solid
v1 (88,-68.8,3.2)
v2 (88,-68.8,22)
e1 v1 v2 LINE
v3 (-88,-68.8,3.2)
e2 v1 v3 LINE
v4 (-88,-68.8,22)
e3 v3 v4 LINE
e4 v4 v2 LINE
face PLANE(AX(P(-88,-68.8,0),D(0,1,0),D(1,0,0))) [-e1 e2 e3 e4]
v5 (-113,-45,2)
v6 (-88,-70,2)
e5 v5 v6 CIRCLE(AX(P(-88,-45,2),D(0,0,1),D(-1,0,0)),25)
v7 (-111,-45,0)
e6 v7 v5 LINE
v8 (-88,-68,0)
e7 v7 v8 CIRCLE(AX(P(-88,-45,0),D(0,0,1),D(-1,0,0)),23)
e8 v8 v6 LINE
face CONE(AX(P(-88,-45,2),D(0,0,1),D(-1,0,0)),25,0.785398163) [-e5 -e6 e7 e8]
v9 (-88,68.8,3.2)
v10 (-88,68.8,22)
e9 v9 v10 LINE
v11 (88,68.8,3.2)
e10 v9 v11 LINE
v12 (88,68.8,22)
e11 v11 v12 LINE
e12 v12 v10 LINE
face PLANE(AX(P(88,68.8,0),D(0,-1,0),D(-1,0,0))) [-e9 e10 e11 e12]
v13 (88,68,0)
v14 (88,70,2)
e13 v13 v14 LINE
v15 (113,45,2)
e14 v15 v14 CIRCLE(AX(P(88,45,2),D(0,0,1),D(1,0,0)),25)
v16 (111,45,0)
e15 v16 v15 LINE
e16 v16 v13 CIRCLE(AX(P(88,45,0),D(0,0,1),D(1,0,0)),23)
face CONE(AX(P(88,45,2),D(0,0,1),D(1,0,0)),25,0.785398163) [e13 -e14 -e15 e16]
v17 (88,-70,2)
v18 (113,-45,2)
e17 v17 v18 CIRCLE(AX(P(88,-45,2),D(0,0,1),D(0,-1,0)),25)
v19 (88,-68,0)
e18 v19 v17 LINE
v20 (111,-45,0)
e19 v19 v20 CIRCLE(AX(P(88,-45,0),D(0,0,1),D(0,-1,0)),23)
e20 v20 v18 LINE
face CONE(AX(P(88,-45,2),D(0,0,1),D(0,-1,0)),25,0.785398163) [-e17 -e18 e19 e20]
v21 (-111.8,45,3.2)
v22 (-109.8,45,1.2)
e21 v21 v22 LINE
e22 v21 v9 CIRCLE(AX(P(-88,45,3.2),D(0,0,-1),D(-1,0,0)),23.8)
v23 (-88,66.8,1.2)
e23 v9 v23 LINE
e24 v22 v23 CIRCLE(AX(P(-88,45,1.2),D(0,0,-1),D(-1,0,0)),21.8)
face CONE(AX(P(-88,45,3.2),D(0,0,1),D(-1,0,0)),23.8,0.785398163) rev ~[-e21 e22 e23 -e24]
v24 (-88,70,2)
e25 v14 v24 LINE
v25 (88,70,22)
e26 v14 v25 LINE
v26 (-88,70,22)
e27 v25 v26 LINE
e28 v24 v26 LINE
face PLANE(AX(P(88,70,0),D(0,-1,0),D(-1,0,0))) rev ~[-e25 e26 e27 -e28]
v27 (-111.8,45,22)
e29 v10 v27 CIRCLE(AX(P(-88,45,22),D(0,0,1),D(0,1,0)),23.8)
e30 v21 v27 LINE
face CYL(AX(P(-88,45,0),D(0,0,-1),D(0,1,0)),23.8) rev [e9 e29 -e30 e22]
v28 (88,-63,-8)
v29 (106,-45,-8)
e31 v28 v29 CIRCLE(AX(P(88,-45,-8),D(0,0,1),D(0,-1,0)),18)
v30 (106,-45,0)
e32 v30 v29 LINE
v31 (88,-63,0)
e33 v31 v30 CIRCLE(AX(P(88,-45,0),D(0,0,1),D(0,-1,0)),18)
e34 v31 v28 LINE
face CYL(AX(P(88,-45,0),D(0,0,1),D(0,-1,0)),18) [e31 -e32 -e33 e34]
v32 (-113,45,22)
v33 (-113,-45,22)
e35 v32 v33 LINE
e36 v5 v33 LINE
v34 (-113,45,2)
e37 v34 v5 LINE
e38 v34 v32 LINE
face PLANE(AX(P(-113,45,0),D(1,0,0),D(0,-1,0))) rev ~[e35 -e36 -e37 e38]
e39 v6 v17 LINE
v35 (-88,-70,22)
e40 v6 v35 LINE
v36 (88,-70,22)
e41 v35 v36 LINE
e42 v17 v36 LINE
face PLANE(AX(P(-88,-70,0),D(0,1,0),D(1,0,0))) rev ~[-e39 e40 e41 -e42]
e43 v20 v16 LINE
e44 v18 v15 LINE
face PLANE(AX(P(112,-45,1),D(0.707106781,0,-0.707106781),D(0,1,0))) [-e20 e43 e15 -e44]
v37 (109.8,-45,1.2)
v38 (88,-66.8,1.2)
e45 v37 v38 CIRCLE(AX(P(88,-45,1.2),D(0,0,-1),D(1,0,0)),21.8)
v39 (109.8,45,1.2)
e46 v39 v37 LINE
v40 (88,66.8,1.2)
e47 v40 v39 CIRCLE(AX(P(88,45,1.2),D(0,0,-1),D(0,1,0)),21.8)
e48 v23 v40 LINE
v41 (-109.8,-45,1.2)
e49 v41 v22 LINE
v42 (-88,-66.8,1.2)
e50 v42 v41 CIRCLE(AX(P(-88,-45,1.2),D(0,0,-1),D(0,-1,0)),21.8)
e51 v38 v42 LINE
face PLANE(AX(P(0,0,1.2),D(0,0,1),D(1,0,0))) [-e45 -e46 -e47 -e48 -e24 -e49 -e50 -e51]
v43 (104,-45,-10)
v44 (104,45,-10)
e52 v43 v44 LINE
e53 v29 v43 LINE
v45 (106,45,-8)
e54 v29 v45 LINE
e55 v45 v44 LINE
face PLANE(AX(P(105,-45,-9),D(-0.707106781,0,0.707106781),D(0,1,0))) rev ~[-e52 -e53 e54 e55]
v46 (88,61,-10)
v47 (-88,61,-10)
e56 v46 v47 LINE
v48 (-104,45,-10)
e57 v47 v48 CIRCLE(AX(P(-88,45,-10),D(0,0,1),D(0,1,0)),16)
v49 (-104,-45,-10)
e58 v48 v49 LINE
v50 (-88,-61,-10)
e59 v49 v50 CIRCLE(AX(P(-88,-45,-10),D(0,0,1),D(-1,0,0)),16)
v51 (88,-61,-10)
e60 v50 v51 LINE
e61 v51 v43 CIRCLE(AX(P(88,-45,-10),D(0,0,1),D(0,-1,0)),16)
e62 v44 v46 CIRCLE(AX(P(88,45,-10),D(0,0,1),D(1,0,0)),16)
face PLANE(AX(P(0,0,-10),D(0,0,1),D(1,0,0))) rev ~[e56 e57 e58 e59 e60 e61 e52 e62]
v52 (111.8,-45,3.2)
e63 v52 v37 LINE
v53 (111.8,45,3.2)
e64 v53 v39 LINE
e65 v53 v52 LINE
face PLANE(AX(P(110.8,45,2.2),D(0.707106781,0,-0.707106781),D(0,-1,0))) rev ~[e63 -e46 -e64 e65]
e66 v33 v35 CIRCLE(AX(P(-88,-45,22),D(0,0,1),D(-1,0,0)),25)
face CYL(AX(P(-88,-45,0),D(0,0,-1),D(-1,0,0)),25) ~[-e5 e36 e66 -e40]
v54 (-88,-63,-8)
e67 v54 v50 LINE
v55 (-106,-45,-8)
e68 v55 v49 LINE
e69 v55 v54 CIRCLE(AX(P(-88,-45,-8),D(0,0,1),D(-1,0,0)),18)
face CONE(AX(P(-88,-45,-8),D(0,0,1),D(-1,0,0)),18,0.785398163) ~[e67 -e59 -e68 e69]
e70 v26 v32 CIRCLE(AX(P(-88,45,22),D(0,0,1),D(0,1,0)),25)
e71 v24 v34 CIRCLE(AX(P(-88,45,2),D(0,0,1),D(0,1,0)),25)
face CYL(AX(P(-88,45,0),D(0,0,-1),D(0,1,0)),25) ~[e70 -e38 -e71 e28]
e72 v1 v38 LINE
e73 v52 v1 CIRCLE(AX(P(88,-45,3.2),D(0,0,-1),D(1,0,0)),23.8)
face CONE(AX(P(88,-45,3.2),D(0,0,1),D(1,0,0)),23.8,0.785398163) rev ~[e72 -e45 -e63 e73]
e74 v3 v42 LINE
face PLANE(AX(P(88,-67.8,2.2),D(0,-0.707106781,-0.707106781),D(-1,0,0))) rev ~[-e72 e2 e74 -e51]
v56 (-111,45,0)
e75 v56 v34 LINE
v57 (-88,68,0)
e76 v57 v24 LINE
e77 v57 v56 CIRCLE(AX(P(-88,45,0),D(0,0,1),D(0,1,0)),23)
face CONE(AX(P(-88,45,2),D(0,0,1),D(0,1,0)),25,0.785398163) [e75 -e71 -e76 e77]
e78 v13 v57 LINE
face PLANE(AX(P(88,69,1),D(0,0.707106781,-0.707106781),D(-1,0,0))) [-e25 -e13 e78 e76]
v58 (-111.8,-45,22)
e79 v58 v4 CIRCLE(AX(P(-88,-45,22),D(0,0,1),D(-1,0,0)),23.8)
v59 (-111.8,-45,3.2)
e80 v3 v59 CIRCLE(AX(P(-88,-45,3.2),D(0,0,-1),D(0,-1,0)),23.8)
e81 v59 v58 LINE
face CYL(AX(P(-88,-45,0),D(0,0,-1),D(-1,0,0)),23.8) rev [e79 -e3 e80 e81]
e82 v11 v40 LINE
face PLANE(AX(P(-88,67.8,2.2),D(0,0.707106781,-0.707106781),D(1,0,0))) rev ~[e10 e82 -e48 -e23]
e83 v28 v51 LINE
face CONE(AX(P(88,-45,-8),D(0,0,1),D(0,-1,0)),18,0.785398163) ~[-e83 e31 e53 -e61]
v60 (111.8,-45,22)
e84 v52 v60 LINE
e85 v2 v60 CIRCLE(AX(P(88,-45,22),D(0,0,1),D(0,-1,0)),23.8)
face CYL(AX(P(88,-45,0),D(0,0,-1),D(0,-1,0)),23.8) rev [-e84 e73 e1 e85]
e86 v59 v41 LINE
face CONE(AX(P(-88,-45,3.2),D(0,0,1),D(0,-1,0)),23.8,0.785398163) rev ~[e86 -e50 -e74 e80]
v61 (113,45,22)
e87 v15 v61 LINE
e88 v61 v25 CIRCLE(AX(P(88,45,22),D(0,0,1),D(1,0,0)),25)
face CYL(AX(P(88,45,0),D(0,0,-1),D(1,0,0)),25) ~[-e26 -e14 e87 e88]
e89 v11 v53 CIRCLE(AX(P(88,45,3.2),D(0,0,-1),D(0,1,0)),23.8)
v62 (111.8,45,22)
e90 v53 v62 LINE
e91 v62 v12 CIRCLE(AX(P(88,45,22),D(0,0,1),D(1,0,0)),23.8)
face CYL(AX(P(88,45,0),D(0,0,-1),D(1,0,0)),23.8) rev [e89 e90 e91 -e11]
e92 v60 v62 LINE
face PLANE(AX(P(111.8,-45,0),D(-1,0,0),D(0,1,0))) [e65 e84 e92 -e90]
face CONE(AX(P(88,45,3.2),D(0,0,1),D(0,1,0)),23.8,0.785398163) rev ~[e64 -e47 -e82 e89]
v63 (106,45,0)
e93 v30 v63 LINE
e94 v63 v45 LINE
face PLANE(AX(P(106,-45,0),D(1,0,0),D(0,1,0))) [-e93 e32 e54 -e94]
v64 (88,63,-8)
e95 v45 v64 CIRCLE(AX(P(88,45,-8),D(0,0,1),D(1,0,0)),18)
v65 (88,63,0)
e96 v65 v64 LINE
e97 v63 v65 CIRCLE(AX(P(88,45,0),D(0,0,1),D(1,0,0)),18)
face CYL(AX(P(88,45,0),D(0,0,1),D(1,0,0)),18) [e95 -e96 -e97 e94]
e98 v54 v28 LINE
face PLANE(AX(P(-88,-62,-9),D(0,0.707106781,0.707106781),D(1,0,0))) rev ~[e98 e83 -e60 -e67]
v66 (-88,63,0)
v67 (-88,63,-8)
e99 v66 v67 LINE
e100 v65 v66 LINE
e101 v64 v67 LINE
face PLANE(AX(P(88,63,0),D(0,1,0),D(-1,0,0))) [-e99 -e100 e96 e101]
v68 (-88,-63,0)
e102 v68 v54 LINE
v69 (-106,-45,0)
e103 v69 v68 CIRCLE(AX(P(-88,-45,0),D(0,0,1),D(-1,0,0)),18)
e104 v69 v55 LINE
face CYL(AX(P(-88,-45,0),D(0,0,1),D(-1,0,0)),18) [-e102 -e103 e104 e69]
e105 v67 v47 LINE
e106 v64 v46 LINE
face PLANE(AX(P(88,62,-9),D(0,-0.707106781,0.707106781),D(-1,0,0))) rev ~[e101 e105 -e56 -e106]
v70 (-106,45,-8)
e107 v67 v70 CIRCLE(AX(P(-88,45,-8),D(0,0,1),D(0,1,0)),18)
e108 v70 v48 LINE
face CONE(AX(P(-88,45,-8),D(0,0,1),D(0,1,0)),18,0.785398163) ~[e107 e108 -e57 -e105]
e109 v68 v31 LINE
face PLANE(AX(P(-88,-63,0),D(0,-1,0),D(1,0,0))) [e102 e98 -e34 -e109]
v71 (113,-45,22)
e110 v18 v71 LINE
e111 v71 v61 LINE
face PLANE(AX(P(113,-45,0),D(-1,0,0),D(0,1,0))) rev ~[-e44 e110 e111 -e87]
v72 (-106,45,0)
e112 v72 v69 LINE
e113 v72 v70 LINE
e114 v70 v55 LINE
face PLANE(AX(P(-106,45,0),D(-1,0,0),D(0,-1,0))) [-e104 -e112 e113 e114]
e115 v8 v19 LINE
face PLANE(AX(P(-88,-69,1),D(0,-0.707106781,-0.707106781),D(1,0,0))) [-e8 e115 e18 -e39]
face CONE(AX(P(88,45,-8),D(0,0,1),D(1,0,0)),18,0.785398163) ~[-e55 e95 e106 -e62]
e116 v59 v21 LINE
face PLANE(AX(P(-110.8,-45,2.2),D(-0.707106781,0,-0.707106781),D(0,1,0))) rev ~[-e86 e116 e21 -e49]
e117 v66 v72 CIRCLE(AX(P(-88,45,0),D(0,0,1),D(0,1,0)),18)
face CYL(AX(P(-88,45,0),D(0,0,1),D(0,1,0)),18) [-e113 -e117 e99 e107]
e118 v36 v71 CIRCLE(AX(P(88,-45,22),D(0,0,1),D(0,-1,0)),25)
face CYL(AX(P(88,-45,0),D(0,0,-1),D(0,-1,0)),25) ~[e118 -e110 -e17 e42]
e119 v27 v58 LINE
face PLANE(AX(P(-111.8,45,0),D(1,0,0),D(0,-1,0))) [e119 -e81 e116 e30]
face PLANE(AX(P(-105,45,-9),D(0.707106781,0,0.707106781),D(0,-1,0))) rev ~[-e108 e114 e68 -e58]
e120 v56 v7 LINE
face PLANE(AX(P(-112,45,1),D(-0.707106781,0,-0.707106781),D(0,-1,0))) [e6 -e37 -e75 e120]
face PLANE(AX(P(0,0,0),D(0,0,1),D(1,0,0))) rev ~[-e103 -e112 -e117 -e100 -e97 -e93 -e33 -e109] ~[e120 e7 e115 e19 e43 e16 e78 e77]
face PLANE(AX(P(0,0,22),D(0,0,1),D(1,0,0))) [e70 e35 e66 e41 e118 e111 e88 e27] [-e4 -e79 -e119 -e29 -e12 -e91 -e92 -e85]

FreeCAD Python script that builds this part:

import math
import FreeCAD as App
import Part
import Sketcher
from FreeCAD import Vector
Q = App.Units.Quantity


def edges_at(feature, points):
    """Names of the edges that pass closest to the given points."""
    edges = feature.Shape.Edges
    near = lambda p: min(range(len(edges)), key=lambda i: edges[i].distToShape(Part.Vertex(*p))[0])
    return sorted({f"Edge{near(p) + 1}" for p in points})


def faces_at(feature, points):
    """Names of the faces that lie closest to the given points."""
    faces = feature.Shape.Faces
    near = lambda p: min(range(len(faces)), key=lambda i: faces[i].distToShape(Part.Vertex(*p))[0])
    return sorted({f"Face{near(p) + 1}" for p in points})

doc = App.newDocument("Part")
body = doc.addObject("PartDesign::Body", "Body")

# Sketch on XY plane
sketch1 = body.newObject("Sketcher::SketchObject", "Sketch")
sketch1.AttachmentSupport = (doc.getObject("XY_Plane"), [""])
sketch1.MapMode = "FlatFace"
sketch1.addGeometry([
    Part.ArcOfCircle(Part.Circle(Vector(88, 45, 0), Vector(0, 0, 1), 25), math.radians(0), math.radians(90)),  # 0
    Part.LineSegment(Vector(88, 70, 0), Vector(-88, 70, 0)),  # 1
    Part.ArcOfCircle(Part.Circle(Vector(-88, 45, 0), Vector(0, 0, 1), 25), math.radians(90), math.radians(180)),  # 2
    Part.LineSegment(Vector(-113, 45, 0), Vector(-113, -45, 0)),  # 3
    Part.ArcOfCircle(Part.Circle(Vector(-88, -45, 0), Vector(0, 0, 1), 25), math.radians(180), math.radians(270)),  # 4
    Part.LineSegment(Vector(-88, -70, 0), Vector(88, -70, 0)),  # 5
    Part.ArcOfCircle(Part.Circle(Vector(88, -45, 0), Vector(0, 0, 1), 25), math.radians(-90), math.radians(0)),  # 6
    Part.LineSegment(Vector(113, -45, 0), Vector(113, 45, 0)),  # 7
], False)
sketch1.addConstraint([
    Sketcher.Constraint("Tangent", 0, 2, 1, 1),
    Sketcher.Constraint("Tangent", 1, 2, 2, 1),
    Sketcher.Constraint("Tangent", 2, 2, 3, 1),
    Sketcher.Constraint("Tangent", 3, 2, 4, 1),
    Sketcher.Constraint("Tangent", 4, 2, 5, 1),
    Sketcher.Constraint("Tangent", 5, 2, 6, 1),
    Sketcher.Constraint("Tangent", 6, 2, 7, 1),
    Sketcher.Constraint("Tangent", 7, 2, 0, 1),
    Sketcher.Constraint("Horizontal", 1),
    Sketcher.Constraint("Vertical", 3),
    Sketcher.Constraint("Horizontal", 5),
    Sketcher.Constraint("Vertical", 7),
    Sketcher.Constraint("Equal", 0, 2),
    Sketcher.Constraint("Equal", 2, 4),
    Sketcher.Constraint("Equal", 4, 6),
    Sketcher.Constraint("Symmetric", 0, 3, 4, 3, -1, 1),
    Sketcher.Constraint("Radius", 0, Q("25 mm")),
    Sketcher.Constraint("DistanceX", 1, 2, 1, 1, Q("176 mm")),
    Sketcher.Constraint("DistanceY", 3, 2, 3, 1, Q("90 mm")),
])
pad1 = body.newObject("PartDesign::Pad", "Pad")
pad1.Profile = sketch1
pad1.Length = 22
doc.recompute()

thickness = body.newObject("PartDesign::Thickness", "Thickness")
thickness.Base = (pad1, faces_at(pad1, [(0, 0, 22)]))
thickness.Value = 1.2
thickness.Reversed = True
thickness.Join = "Arc"

# Sketch on XY plane
sketch2 = body.newObject("Sketcher::SketchObject", "Sketch001")
sketch2.AttachmentSupport = (doc.getObject("XY_Plane"), [""])
sketch2.MapMode = "FlatFace"
sketch2.addGeometry([
    Part.LineSegment(Vector(-88, -63, 0), Vector(88, -63, 0)),  # 0
    Part.ArcOfCircle(Part.Circle(Vector(88, -45, 0), Vector(0, 0, 1), 18), math.radians(-90), math.radians(0)),  # 1
    Part.LineSegment(Vector(106, -45, 0), Vector(106, 45, 0)),  # 2
    Part.ArcOfCircle(Part.Circle(Vector(88, 45, 0), Vector(0, 0, 1), 18), math.radians(0), math.radians(90)),  # 3
    Part.LineSegment(Vector(88, 63, 0), Vector(-88, 63, 0)),  # 4
    Part.ArcOfCircle(Part.Circle(Vector(-88, 45, 0), Vector(0, 0, 1), 18), math.radians(90), math.radians(180)),  # 5
    Part.LineSegment(Vector(-106, 45, 0), Vector(-106, -45, 0)),  # 6
    Part.ArcOfCircle(Part.Circle(Vector(-88, -45, 0), Vector(0, 0, 1), 18), math.radians(180), math.radians(270)),  # 7
], False)
sketch2.addConstraint([
    Sketcher.Constraint("Tangent", 0, 2, 1, 1),
    Sketcher.Constraint("Tangent", 1, 2, 2, 1),
    Sketcher.Constraint("Tangent", 2, 2, 3, 1),
    Sketcher.Constraint("Tangent", 3, 2, 4, 1),
    Sketcher.Constraint("Tangent", 4, 2, 5, 1),
    Sketcher.Constraint("Tangent", 5, 2, 6, 1),
    Sketcher.Constraint("Tangent", 6, 2, 7, 1),
    Sketcher.Constraint("Tangent", 7, 2, 0, 1),
    Sketcher.Constraint("Horizontal", 0),
    Sketcher.Constraint("Vertical", 2),
    Sketcher.Constraint("Horizontal", 4),
    Sketcher.Constraint("Vertical", 6),
    Sketcher.Constraint("Equal", 1, 3),
    Sketcher.Constraint("Equal", 3, 5),
    Sketcher.Constraint("Equal", 5, 7),
    Sketcher.Constraint("Symmetric", 1, 3, 5, 3, -1, 1),
    Sketcher.Constraint("Radius", 1, Q("18 mm")),
    Sketcher.Constraint("DistanceX", 0, 1, 0, 2, Q("176 mm")),
    Sketcher.Constraint("DistanceY", 2, 1, 2, 2, Q("90 mm")),
])
pad2 = body.newObject("PartDesign::Pad", "Pad001")
pad2.Profile = sketch2
pad2.Length = 10
pad2.Reversed = True
doc.recompute()

chamfer = body.newObject("PartDesign::Chamfer", "Chamfer")
chamfer.Base = (pad2, edges_at(pad2, [
    (0, -63, -10),
    (100.728, -57.728, -10),
    (106, 0, -10),
    (100.728, 57.728, -10),
    (0, 63, -10),
    (-100.728, 57.728, -10),
    (-106, 0, -10),
    (-100.728, -57.728, -10),
    (-113, 0, 0),
    (-105.678, -62.678, 0),
    (0, -70, 0),
    (-105.678, 62.678, 0),
    (0, 70, 0),
    (105.678, 62.678, 0),
    (105.678, -62.678, 0),
    (113, 0, 0),
]))
chamfer.Size = 2
doc.recompute()

chamfer2 = body.newObject("PartDesign::Chamfer", "Chamfer001")
chamfer2.Base = (chamfer, edges_at(chamfer, [
    (104.829, 61.829, 1.2),
    (0, 68.8, 1.2),
    (-104.829, 61.829, 1.2),
    (-111.8, 0, 1.2),
    (-104.829, -61.829, 1.2),
    (0, -68.8, 1.2),
    (104.829, -61.829, 1.2),
    (111.8, 0, 1.2),
]))
chamfer2.Size = 2

doc.recompute()
